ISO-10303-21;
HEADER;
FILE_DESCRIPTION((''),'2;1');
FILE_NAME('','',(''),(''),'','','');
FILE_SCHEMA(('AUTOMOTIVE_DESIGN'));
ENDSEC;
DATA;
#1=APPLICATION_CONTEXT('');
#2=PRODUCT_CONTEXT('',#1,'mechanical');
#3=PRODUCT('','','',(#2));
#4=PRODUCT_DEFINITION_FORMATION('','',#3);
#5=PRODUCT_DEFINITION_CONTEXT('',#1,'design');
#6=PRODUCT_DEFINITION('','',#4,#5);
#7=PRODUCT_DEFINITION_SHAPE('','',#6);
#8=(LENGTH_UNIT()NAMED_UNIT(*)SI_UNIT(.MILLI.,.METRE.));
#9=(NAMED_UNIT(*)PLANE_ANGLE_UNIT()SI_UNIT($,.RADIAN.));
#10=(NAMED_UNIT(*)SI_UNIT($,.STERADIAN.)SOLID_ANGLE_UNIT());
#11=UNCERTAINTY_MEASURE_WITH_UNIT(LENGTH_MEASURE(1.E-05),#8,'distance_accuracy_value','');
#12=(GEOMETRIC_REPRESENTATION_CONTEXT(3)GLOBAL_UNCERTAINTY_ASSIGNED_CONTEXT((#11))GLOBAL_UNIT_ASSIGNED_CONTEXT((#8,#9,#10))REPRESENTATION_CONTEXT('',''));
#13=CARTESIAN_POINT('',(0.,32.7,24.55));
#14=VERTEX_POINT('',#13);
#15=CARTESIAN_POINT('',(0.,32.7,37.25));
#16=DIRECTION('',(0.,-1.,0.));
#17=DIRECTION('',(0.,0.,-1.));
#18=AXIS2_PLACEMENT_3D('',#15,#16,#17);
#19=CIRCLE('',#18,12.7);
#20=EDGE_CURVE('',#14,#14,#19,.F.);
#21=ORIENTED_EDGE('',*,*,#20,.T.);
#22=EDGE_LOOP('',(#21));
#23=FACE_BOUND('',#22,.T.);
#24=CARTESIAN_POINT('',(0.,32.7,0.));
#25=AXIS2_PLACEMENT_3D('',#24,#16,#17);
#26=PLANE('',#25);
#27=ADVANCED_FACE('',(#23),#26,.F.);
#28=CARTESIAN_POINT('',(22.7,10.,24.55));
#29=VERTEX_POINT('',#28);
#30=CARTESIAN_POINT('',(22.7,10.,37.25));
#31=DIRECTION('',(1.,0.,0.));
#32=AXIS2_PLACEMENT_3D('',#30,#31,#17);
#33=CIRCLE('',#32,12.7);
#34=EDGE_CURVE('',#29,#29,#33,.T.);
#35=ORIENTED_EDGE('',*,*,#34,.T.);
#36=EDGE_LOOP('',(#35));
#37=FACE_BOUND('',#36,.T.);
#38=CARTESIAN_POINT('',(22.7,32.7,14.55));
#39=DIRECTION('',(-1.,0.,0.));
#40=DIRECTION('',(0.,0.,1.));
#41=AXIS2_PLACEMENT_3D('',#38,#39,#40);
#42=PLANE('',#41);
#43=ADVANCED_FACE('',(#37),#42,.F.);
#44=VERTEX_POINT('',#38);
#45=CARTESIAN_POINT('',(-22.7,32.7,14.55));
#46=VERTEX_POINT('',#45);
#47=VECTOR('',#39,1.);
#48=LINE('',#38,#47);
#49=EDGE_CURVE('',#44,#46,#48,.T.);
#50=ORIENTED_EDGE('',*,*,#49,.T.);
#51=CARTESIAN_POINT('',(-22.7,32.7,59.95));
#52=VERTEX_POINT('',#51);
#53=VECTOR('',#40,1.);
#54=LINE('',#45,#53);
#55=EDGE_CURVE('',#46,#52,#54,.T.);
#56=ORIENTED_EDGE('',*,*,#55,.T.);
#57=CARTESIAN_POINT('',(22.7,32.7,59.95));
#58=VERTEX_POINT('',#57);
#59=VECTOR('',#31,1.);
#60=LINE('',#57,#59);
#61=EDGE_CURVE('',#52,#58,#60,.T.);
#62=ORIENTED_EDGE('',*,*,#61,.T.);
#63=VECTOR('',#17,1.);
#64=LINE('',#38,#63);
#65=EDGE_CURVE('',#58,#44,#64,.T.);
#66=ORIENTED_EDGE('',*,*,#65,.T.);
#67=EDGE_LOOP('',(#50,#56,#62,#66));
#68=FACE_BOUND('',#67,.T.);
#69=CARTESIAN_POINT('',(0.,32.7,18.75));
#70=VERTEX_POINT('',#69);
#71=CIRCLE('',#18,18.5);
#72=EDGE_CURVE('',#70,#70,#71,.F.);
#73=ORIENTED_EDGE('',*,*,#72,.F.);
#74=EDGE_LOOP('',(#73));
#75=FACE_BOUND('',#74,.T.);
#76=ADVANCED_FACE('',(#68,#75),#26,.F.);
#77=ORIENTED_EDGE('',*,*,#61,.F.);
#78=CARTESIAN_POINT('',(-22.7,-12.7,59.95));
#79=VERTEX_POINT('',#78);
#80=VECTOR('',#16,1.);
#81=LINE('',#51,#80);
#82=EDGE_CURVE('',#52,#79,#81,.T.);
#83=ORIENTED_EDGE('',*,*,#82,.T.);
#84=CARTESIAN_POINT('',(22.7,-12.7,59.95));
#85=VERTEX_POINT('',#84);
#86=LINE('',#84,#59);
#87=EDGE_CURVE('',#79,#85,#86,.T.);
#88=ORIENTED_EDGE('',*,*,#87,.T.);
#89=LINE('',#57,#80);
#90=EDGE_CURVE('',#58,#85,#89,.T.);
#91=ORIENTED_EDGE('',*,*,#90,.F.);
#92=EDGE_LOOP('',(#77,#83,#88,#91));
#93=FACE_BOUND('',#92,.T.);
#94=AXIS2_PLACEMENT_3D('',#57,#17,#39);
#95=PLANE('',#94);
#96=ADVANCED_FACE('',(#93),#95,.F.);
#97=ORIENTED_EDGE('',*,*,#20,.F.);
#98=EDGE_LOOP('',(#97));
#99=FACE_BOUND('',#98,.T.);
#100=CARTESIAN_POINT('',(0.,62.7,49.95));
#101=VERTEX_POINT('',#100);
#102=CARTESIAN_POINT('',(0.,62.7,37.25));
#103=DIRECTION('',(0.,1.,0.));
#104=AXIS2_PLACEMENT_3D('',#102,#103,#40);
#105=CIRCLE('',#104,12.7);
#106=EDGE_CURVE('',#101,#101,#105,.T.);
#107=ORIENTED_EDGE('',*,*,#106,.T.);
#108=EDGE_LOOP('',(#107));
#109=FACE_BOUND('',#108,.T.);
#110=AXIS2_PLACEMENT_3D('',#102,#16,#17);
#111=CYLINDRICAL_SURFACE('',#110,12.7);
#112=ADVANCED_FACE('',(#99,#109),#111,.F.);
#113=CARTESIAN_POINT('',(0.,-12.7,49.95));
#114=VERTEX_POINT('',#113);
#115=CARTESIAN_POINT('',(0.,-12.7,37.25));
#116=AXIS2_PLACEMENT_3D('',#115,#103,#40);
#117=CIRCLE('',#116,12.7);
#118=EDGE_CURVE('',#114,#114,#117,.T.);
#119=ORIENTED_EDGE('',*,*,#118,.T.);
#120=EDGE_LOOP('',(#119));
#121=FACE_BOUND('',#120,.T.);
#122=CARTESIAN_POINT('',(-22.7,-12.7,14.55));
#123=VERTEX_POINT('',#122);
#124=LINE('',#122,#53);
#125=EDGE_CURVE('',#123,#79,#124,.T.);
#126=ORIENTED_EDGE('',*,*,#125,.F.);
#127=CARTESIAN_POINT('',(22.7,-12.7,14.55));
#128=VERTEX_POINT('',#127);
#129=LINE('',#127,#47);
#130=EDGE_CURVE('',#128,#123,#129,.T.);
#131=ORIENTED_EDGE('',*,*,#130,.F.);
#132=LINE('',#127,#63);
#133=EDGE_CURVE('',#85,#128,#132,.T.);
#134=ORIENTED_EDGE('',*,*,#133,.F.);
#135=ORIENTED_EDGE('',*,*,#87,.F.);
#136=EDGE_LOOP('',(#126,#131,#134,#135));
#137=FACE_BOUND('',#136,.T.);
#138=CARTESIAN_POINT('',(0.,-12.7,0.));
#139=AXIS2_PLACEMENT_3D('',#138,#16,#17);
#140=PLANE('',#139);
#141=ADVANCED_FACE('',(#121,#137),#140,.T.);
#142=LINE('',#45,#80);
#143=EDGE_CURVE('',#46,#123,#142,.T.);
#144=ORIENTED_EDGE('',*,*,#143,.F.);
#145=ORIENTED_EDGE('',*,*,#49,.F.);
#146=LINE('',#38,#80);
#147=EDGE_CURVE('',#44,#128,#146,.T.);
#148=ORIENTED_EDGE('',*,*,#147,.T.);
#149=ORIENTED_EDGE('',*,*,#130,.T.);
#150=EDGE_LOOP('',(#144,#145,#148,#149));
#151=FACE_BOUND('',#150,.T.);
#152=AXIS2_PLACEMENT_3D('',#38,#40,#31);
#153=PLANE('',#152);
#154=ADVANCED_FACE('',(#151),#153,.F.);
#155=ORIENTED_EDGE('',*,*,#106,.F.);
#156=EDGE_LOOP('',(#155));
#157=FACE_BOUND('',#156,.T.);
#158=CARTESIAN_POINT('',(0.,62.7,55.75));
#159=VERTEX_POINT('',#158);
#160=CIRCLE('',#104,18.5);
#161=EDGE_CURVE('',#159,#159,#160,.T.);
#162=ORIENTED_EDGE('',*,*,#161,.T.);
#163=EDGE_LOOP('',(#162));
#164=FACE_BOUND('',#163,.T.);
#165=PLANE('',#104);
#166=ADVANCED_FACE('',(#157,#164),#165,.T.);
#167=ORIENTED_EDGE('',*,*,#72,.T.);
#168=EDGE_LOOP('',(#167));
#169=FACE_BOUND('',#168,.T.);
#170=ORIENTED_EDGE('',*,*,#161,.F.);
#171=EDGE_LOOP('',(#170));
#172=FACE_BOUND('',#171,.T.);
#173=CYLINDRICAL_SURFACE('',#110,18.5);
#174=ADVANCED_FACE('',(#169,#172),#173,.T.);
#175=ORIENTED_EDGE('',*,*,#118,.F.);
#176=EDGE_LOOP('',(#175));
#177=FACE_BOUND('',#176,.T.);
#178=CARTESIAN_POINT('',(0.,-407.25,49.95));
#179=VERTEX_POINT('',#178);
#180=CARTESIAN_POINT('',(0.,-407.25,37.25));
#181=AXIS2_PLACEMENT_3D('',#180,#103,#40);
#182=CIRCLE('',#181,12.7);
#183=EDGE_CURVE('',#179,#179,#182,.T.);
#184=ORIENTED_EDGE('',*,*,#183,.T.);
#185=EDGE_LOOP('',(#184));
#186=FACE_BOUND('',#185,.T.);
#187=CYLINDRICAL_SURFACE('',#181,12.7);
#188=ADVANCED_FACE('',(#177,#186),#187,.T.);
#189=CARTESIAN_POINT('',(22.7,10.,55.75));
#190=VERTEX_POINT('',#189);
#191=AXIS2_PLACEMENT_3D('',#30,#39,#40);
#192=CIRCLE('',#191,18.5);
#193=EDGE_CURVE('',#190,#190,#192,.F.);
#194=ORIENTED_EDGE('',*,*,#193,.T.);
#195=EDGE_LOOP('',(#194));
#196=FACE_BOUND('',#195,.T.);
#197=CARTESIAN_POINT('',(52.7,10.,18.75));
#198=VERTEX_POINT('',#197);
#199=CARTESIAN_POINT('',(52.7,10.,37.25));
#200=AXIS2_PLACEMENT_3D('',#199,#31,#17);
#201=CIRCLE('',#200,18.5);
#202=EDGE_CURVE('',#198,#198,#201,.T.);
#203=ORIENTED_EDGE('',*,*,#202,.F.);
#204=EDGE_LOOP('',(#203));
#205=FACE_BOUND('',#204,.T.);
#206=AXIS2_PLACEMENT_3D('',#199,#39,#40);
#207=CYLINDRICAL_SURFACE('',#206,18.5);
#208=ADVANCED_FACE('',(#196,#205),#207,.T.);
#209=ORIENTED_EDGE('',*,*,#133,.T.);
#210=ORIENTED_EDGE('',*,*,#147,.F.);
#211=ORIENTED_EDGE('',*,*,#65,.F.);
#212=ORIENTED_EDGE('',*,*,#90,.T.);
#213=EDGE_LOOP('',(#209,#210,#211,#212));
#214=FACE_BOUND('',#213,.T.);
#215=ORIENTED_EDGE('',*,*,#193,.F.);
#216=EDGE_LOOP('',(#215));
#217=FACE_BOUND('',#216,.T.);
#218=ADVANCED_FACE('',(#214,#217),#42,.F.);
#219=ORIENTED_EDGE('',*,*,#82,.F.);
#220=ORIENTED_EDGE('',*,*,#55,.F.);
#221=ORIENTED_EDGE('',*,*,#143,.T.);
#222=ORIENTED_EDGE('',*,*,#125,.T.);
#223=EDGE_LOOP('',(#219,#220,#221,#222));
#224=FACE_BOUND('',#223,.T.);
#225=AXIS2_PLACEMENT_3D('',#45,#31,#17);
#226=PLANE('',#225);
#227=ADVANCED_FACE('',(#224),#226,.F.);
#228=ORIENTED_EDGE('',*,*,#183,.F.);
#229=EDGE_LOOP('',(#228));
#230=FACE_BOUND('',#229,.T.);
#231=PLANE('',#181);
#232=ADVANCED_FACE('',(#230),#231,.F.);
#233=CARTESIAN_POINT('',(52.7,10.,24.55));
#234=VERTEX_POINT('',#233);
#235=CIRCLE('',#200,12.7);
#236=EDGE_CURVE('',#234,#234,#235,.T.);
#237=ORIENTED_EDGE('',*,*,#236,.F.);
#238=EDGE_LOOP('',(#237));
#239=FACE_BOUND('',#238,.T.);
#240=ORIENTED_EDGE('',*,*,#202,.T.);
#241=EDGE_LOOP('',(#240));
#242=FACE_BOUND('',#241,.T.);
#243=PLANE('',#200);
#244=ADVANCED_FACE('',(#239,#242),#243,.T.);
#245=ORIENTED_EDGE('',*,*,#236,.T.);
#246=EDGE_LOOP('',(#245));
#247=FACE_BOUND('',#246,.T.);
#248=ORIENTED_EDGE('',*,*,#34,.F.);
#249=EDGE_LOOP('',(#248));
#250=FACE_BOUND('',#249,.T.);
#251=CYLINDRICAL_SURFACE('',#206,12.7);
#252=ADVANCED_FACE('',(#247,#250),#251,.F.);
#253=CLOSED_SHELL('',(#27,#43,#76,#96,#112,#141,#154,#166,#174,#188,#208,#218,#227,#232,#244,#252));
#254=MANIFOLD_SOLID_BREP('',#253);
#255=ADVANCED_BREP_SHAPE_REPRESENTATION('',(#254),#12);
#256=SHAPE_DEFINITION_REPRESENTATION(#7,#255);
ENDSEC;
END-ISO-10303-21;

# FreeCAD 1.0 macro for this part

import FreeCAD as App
import Part
import Sketcher

doc = App.newDocument("Part")
body = doc.addObject("PartDesign::Body", "Body")

sketch1 = body.newObject("Sketcher::SketchObject", "Sketch")
sketch1.AttachmentSupport = (doc.getObject("XZ_Plane"), [""])
sketch1.MapMode = "FlatFace"
sketch1.AttachmentOffset = App.Placement(App.Vector(0, 0, 12.7), App.Rotation())
sketch1.addGeometry(Part.Circle(App.Vector(0, 37, 0), App.Vector(0, 0, 1), 13), False)
sketch1.addConstraint(Sketcher.Constraint("PointOnObject", 0, 3, -2))
sketch1.addConstraint(Sketcher.Constraint("Diameter", 0, 25.4))
sketch1.addConstraint(Sketcher.Constraint("DistanceY", -1, 1, 0, 3, 37.25))
pad1 = body.newObject("PartDesign::Pad", "Pad")
pad1.Profile = sketch1
pad1.Length = 394.55

sketch2 = body.newObject("Sketcher::SketchObject", "Sketch001")
sketch2.AttachmentSupport = (doc.getObject("XZ_Plane"), [""])
sketch2.MapMode = "FlatFace"
sketch2.AttachmentOffset = App.Placement(App.Vector(0, 0, 12.7), App.Rotation())
sketch2.addGeometry(Part.LineSegment(App.Vector(-23, 15, 0), App.Vector(-23, 60, 0)), False)
sketch2.addGeometry(Part.LineSegment(App.Vector(-23, 60, 0), App.Vector(23, 60, 0)), False)
sketch2.addGeometry(Part.LineSegment(App.Vector(23, 60, 0), App.Vector(23, 15, 0)), False)
sketch2.addGeometry(Part.LineSegment(App.Vector(23, 15, 0), App.Vector(-23, 15, 0)), False)
sketch2.addConstraint(Sketcher.Constraint("Coincident", 0, 2, 1, 1))
sketch2.addConstraint(Sketcher.Constraint("Coincident", 1, 2, 2, 1))
sketch2.addConstraint(Sketcher.Constraint("Coincident", 2, 2, 3, 1))
sketch2.addConstraint(Sketcher.Constraint("Coincident", 3, 2, 0, 1))
sketch2.addConstraint(Sketcher.Constraint("Vertical", 0))
sketch2.addConstraint(Sketcher.Constraint("Horizontal", 1))
sketch2.addConstraint(Sketcher.Constraint("Vertical", 2))
sketch2.addConstraint(Sketcher.Constraint("Horizontal", 3))
sketch2.addConstraint(Sketcher.Constraint("Equal", 3, 0))
sketch2.addConstraint(Sketcher.Constraint("DistanceX", 1, 1, 1, 2, 45.4))
sketch2.addConstraint(Sketcher.Constraint("DistanceX", 0, 2, -1, 1, 22.7))
sketch2.addConstraint(Sketcher.Constraint("DistanceY", -1, 1, 0, 2, 59.95))
pad2 = body.newObject("PartDesign::Pad", "Pad001")
pad2.Profile = sketch2
pad2.Length = 45.4
pad2.Reversed = True

sketch3 = body.newObject("Sketcher::SketchObject", "Sketch002")
sketch3.AttachmentSupport = (doc.getObject("YZ_Plane"), [""])
sketch3.MapMode = "FlatFace"
sketch3.AttachmentOffset = App.Placement(App.Vector(0, 0, 22.7), App.Rotation())
sketch3.addGeometry(Part.Circle(App.Vector(10, 37, 0), App.Vector(0, 0, 1), 18), False)
sketch3.addGeometry(Part.Circle(App.Vector(10, 37, 0), App.Vector(0, 0, 1), 13), False)
sketch3.addConstraint(Sketcher.Constraint("Coincident", 1, 3, 0, 3))
sketch3.addConstraint(Sketcher.Constraint("Diameter", 0, 37.0))
sketch3.addConstraint(Sketcher.Constraint("Diameter", 1, 25.4))
sketch3.addConstraint(Sketcher.Constraint("DistanceX", -1, 1, 0, 3, 10.0))
sketch3.addConstraint(Sketcher.Constraint("DistanceY", -1, 1, 0, 3, 37.25))
pad3 = body.newObject("PartDesign::Pad", "Pad002")
pad3.Profile = sketch3
pad3.Length = 30

sketch4 = body.newObject("Sketcher::SketchObject", "Sketch003")
sketch4.AttachmentSupport = (doc.getObject("XZ_Plane"), [""])
sketch4.MapMode = "FlatFace"
sketch4.AttachmentOffset = App.Placement(App.Vector(0, 0, -62.7), App.Rotation())
sketch4.addGeometry(Part.Circle(App.Vector(0, 37, 0), App.Vector(0, 0, 1), 18), False)
sketch4.addGeometry(Part.Circle(App.Vector(0, 37, 0), App.Vector(0, 0, 1), 13), False)
sketch4.addConstraint(Sketcher.Constraint("Coincident", 1, 3, 0, 3))
sketch4.addConstraint(Sketcher.Constraint("PointOnObject", 0, 3, -2))
sketch4.addConstraint(Sketcher.Constraint("Diameter", 0, 37.0))
sketch4.addConstraint(Sketcher.Constraint("Diameter", 1, 25.4))
sketch4.addConstraint(Sketcher.Constraint("DistanceY", -1, 1, 0, 3, 37.25))
pad4 = body.newObject("PartDesign::Pad", "Pad003")
pad4.Profile = sketch4
pad4.Length = 75.4

doc.recompute()
